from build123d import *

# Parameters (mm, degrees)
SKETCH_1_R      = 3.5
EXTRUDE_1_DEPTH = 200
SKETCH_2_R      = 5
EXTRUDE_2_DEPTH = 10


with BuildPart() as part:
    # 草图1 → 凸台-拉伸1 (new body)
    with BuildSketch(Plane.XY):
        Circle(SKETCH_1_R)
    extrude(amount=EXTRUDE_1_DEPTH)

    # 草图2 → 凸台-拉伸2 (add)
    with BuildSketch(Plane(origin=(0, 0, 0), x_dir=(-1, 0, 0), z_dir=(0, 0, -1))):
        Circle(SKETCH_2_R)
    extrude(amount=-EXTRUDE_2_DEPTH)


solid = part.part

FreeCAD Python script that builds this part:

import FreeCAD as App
import Part
import Sketcher
from FreeCAD import Vector

doc = App.newDocument("Part")
body = doc.addObject("PartDesign::Body", "Body")

# Sketch on XY plane
sketch1 = body.newObject("Sketcher::SketchObject", "Sketch")
sketch1.AttachmentSupport = (doc.getObject("XY_Plane"), [""])
sketch1.MapMode = "FlatFace"
sketch1.addGeometry(Part.Circle(Vector(0, 0, 0), Vector(0, 0, 1), 3.5), False)
sketch1.addConstraint(Sketcher.Constraint("Coincident", 0, 3, -1, 1))
sketch1.addConstraint(Sketcher.Constraint("Diameter", 0, 7.0))
pad1 = body.newObject("PartDesign::Pad", "Pad")
pad1.Profile = sketch1
pad1.Length = 200

# Sketch on XY plane
sketch2 = body.newObject("Sketcher::SketchObject", "Sketch001")
sketch2.AttachmentSupport = (doc.getObject("XY_Plane"), [""])
sketch2.MapMode = "FlatFace"
sketch2.addGeometry(Part.Circle(Vector(0, 0, 0), Vector(0, 0, 1), 5), False)
sketch2.addConstraint(Sketcher.Constraint("Coincident", 0, 3, -1, 1))
sketch2.addConstraint(Sketcher.Constraint("Diameter", 0, 10.0))
pad2 = body.newObject("PartDesign::Pad", "Pad001")
pad2.Profile = sketch2
pad2.Length = 10

doc.recompute()
